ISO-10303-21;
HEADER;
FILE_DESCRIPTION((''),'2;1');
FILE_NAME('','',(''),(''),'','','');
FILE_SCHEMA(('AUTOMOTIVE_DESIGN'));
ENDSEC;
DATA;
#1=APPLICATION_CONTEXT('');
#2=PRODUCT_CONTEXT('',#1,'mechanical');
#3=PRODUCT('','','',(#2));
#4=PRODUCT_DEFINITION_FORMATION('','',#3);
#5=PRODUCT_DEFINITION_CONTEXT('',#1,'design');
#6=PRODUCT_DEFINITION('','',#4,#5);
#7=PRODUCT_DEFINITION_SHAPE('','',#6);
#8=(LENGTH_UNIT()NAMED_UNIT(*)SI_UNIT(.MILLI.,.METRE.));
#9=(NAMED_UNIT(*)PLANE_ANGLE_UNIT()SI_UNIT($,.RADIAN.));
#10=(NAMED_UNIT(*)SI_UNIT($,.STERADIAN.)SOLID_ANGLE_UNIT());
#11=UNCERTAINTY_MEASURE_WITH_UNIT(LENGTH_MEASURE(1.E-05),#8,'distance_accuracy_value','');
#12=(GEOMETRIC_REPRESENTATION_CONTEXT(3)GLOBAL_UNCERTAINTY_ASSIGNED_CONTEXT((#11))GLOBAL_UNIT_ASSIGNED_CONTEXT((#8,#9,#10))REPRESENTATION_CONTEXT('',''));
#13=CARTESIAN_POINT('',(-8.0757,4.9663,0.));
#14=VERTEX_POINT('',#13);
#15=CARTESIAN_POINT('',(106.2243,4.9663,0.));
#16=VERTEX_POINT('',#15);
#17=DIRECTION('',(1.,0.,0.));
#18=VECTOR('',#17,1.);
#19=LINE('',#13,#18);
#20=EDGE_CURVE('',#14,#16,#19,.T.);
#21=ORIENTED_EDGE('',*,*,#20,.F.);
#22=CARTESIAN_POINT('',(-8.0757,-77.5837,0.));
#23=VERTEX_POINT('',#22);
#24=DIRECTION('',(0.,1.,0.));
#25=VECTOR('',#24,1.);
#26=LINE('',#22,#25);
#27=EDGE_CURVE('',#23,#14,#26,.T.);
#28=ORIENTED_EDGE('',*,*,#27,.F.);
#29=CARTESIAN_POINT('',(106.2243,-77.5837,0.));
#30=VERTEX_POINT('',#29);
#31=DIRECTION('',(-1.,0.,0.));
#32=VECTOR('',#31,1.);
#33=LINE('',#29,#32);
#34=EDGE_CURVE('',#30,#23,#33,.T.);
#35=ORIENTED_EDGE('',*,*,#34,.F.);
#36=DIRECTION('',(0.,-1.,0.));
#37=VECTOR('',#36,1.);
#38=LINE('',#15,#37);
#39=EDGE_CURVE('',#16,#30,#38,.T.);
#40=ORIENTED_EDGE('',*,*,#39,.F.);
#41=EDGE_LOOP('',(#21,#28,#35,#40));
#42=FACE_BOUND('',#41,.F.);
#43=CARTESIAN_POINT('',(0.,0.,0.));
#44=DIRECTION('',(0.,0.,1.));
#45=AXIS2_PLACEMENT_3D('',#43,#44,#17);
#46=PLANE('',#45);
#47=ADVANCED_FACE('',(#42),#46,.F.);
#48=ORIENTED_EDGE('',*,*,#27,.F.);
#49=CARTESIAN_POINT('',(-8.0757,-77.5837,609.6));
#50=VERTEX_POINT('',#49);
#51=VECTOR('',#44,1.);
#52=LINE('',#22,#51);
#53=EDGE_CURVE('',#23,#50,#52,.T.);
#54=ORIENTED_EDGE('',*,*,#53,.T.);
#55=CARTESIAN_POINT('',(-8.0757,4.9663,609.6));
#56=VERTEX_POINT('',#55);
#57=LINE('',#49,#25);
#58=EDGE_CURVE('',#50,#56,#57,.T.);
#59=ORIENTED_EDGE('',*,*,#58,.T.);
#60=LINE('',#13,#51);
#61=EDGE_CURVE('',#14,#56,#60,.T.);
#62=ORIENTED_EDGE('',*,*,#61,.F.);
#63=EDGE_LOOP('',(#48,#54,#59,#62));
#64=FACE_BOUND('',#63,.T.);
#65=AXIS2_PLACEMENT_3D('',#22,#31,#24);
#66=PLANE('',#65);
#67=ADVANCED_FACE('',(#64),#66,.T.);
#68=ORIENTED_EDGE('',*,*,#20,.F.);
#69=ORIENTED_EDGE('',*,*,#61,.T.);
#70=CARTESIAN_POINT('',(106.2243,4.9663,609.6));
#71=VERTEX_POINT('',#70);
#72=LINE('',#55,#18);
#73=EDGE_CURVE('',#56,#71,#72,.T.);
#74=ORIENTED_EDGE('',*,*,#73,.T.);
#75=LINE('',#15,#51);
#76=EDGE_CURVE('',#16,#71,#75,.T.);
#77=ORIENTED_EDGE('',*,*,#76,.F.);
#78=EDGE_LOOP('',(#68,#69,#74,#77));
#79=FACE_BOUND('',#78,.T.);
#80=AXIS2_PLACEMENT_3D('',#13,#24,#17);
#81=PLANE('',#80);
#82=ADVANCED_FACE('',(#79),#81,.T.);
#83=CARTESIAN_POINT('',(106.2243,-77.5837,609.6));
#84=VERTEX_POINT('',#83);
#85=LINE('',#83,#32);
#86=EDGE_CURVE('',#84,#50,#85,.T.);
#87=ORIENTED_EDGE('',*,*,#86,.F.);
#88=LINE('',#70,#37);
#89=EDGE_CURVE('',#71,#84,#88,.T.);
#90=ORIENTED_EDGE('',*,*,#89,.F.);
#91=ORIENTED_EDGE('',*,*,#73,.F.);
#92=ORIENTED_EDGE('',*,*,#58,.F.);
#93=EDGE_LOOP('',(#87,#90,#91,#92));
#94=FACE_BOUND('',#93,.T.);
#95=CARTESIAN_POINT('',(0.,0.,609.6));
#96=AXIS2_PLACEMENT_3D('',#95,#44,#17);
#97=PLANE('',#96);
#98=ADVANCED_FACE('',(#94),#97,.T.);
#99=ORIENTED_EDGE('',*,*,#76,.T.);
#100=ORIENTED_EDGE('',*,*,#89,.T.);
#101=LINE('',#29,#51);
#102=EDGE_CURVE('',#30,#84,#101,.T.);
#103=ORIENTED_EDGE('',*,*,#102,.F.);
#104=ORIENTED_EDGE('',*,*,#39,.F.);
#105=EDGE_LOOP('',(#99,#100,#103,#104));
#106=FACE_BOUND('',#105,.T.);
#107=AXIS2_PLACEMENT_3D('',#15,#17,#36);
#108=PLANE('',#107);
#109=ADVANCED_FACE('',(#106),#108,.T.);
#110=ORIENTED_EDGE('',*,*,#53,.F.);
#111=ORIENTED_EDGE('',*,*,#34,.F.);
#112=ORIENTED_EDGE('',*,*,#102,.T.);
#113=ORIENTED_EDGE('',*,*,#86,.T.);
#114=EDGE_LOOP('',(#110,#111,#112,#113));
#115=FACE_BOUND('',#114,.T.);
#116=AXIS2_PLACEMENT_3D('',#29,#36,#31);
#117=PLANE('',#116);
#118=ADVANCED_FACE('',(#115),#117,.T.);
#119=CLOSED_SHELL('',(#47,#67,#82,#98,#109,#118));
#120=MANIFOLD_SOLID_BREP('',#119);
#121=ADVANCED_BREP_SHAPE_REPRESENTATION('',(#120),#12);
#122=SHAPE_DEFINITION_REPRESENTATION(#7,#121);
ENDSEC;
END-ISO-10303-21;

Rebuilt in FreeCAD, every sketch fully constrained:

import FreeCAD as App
import Part
import Sketcher
Q = App.Units.Quantity

doc = App.newDocument("Part")
body = doc.addObject("PartDesign::Body", "Body")

# Sketch on XY plane
sketch1 = body.newObject("Sketcher::SketchObject", "Sketch")
sketch1.AttachmentSupport = (doc.getObject("XY_Plane"), [""])
sketch1.MapMode = "FlatFace"
sketch1.addGeometry(Part.LineSegment(App.Vector(106, 5, 0), App.Vector(-8, 5, 0)), False)
sketch1.addGeometry(Part.LineSegment(App.Vector(-8, 5, 0), App.Vector(-8, -78, 0)), False)
sketch1.addGeometry(Part.LineSegment(App.Vector(-8, -78, 0), App.Vector(106, -78, 0)), False)
sketch1.addGeometry(Part.LineSegment(App.Vector(106, -78, 0), App.Vector(106, 5, 0)), False)
sketch1.addConstraint(Sketcher.Constraint("Coincident", 0, 2, 1, 1))
sketch1.addConstraint(Sketcher.Constraint("Coincident", 1, 2, 2, 1))
sketch1.addConstraint(Sketcher.Constraint("Coincident", 2, 2, 3, 1))
sketch1.addConstraint(Sketcher.Constraint("Coincident", 3, 2, 0, 1))
sketch1.addConstraint(Sketcher.Constraint("Horizontal", 0))
sketch1.addConstraint(Sketcher.Constraint("Vertical", 1))
sketch1.addConstraint(Sketcher.Constraint("Horizontal", 2))
sketch1.addConstraint(Sketcher.Constraint("Vertical", 3))
sketch1.addConstraint(Sketcher.Constraint("DistanceX", 0, 2, 0, 1, Q("4.5 in")))
sketch1.addConstraint(Sketcher.Constraint("DistanceY", 1, 2, 1, 1, Q("3.25 in")))
sketch1.addConstraint(Sketcher.Constraint("DistanceX", 0, 2, -1, 1, 8.0757))
sketch1.addConstraint(Sketcher.Constraint("DistanceY", -1, 1, 0, 2, 4.9663))
pad1 = body.newObject("PartDesign::Pad", "Pad")
pad1.Profile = sketch1
pad1.Length = Q("24 in")

doc.recompute()
